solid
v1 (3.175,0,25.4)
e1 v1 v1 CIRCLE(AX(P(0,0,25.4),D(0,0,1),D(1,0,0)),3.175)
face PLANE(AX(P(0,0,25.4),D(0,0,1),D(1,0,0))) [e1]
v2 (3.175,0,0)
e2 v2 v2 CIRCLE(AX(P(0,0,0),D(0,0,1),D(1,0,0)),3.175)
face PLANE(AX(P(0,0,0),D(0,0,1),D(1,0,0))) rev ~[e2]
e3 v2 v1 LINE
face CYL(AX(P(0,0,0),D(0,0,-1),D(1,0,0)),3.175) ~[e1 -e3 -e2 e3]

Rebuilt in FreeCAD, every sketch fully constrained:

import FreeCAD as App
import Part
import Sketcher

V = App.Vector
Q = App.Units.Quantity

doc = App.newDocument("Part")
params = doc.addObject("Spreadsheet::Sheet", "Params")
for row, (alias, value) in enumerate([
    ("sketch1_diameter", "0.25 in"),
    ("pad1_length", "1 in"),
], start=1):
    params.set(f"A{row}", alias)
    params.set(f"B{row}", "=" + value)
    params.setAlias(f"B{row}", alias)

body = doc.addObject("PartDesign::Body", "Body")

# Sketch on XY plane
sketch1 = doc.addObject("Sketcher::SketchObject", "Sketch")
body.addObject(sketch1)
sketch1.AttachmentSupport = (doc.XY_Plane, [""])
sketch1.MapMode = "FlatFace"
sketch1.addGeometry(Part.Circle(V(0, 0, 0), V(0, 0, 1), 3.2), False)
sketch1.addConstraint([
    Sketcher.Constraint("Coincident", 0, 3, -1, 1),
    Sketcher.Constraint("Diameter", 0, Q("0.25 in")),
])
sketch1.setExpression("Constraints[1]", "Params.sketch1_diameter")
pad1 = doc.addObject("PartDesign::Pad", "Pad")
body.addObject(pad1)
pad1.Profile = sketch1
pad1.setExpression("Length", "Params.pad1_length")

doc.recompute()
